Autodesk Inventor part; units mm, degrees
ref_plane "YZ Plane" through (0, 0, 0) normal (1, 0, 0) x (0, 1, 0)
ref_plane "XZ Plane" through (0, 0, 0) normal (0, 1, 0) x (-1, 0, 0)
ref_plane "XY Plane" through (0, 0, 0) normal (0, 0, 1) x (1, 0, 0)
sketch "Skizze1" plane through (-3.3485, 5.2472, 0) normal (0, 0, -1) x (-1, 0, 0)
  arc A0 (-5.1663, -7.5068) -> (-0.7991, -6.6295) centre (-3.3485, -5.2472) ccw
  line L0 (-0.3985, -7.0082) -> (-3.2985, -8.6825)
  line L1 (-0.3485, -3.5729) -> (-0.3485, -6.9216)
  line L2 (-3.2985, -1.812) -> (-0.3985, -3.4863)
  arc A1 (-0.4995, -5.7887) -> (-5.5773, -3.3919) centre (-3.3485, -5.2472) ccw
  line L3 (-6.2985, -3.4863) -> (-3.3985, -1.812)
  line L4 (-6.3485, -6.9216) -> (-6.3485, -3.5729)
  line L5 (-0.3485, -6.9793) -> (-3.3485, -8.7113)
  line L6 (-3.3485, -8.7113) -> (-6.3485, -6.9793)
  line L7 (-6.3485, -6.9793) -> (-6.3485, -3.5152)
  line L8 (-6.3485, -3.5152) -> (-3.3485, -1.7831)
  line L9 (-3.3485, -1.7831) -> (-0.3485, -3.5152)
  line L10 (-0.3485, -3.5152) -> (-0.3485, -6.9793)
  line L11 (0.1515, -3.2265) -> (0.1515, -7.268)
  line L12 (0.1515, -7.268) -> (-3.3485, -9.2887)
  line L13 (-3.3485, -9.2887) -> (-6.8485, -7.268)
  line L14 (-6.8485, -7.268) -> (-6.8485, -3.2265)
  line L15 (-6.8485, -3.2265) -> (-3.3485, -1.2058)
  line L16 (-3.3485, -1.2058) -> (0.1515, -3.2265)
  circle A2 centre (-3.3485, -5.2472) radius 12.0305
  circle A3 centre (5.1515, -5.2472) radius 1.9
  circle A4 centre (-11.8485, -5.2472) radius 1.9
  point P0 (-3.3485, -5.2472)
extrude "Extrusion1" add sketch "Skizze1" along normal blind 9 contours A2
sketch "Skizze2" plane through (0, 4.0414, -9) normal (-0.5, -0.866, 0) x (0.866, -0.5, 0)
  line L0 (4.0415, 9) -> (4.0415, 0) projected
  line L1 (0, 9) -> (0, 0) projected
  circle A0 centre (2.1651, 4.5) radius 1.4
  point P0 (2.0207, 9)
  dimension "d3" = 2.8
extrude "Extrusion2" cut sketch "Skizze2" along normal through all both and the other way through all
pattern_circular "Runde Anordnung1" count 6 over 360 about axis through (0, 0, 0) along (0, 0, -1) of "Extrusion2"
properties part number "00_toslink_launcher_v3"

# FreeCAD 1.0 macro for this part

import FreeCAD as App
import Part
import Sketcher
Q = App.Units.Quantity


def add_polygon(sketch, points):
    """Adds a closed chain of lines whose ends are joined by coincident constraints."""
    first, n = sketch.GeometryCount, len(points)
    for a, b in zip(points, points[1:] + points[:1]):
        sketch.addGeometry(Part.LineSegment(App.Vector(*a, 0), App.Vector(*b, 0)), False)
    for i in range(n):
        sketch.addConstraint(Sketcher.Constraint("Coincident", first + i, 2, first + (i + 1) % n, 1))

doc = App.newDocument("Part")
body = doc.addObject("PartDesign::Body", "Body")

sketch1 = body.newObject("Sketcher::SketchObject", "Sketch")
sketch1.AttachmentSupport = (doc.getObject("XY_Plane"), [""])
sketch1.MapMode = "FlatFace"
sketch1.addGeometry(Part.Circle(App.Vector(0, 0, 0), App.Vector(0, 0, 1), 12.0305), False)
add_polygon(sketch1, [(0, 4.0414), (-3.5, 2.0207), (-3.5, -2.0208), (0, -4.0415), (3.5, -2.0208), (3.5, 2.0207)])
sketch1.addGeometry(Part.Circle(App.Vector(8.5, 0, 0), App.Vector(0, 0, 1), 1.9), False)
sketch1.addGeometry(Part.Circle(App.Vector(-8.5, 0, 0), App.Vector(0, 0, 1), 1.9), False)
sketch1.addConstraint([
    Sketcher.Constraint("Vertical", 2),
    Sketcher.Constraint("Vertical", 5),
    Sketcher.Constraint("Coincident", 0, 3, -1, 1),
    Sketcher.Constraint("Equal", 7, 8),
    Sketcher.Constraint("Symmetric", 7, 3, 8, 3, -1, 1),
    Sketcher.Constraint("Symmetric", 1, 2, 4, 2, -1, 1),
    Sketcher.Constraint("Symmetric", 3, 2, 6, 2, -1, 1),
    Sketcher.Constraint("PointOnObject", 7, 3, -1),
    Sketcher.Constraint("PointOnObject", 3, 2, -2),
    Sketcher.Constraint("Parallel", 3, 6),
    Sketcher.Constraint("Horizontal", 2, 2, 4, 2),
    Sketcher.Constraint("Diameter", 7, Q("3.8 mm")),
    Sketcher.Constraint("Angle", 1, Q("-150.0003 deg")),
    Sketcher.Constraint("Diameter", 0, Q("24.061 mm")),
    Sketcher.Constraint("DistanceX", 8, 3, 7, 3, Q("17 mm")),
    Sketcher.Constraint("DistanceX", 8, 3, 1, 2, Q("5 mm")),
    Sketcher.Constraint("DistanceY", 2, 2, 2, 1, Q("4.0415 mm")),
])
pad1 = body.newObject("PartDesign::Pad", "Pad")
pad1.Profile = sketch1
pad1.Length = 9
pad1.Reversed = True

sketch2 = body.newObject("Sketcher::SketchObject", "Sketch001")
sketch2.Placement = App.Placement(App.Vector(0, 4.0414, -9), App.Rotation(App.Vector(0.866025404, -0.5, 0), App.Vector(0, 0, 1), App.Vector(-0.5, -0.866025404, 0), "ZXY"))
sketch2.addGeometry(Part.Circle(App.Vector(2.1651, 4.5, 0), App.Vector(0, 0, 1), 1.4), False)
sketch2.addConstraint([
    Sketcher.Constraint("Diameter", 0, Q("2.8 mm")),
    Sketcher.Constraint("DistanceY", -1, 1, 0, 3, Q("4.5 mm")),
    Sketcher.Constraint("DistanceX", -1, 1, 0, 3, Q("2.165 mm")),
])
pocket1 = body.newObject("PartDesign::Pocket", "Pocket")
pocket1.Profile = sketch2
pocket1.Type = "ThroughAll"
pocket1.Midplane = True
doc.recompute()

polarpattern = body.newObject("PartDesign::PolarPattern", "PolarPattern")
polarpattern.Originals = [pocket1]
polarpattern.Axis = (doc.getObject("Z_Axis"), [""])
polarpattern.Angle = 360
polarpattern.Occurrences = 6
body.Tip = polarpattern

doc.recompute()
